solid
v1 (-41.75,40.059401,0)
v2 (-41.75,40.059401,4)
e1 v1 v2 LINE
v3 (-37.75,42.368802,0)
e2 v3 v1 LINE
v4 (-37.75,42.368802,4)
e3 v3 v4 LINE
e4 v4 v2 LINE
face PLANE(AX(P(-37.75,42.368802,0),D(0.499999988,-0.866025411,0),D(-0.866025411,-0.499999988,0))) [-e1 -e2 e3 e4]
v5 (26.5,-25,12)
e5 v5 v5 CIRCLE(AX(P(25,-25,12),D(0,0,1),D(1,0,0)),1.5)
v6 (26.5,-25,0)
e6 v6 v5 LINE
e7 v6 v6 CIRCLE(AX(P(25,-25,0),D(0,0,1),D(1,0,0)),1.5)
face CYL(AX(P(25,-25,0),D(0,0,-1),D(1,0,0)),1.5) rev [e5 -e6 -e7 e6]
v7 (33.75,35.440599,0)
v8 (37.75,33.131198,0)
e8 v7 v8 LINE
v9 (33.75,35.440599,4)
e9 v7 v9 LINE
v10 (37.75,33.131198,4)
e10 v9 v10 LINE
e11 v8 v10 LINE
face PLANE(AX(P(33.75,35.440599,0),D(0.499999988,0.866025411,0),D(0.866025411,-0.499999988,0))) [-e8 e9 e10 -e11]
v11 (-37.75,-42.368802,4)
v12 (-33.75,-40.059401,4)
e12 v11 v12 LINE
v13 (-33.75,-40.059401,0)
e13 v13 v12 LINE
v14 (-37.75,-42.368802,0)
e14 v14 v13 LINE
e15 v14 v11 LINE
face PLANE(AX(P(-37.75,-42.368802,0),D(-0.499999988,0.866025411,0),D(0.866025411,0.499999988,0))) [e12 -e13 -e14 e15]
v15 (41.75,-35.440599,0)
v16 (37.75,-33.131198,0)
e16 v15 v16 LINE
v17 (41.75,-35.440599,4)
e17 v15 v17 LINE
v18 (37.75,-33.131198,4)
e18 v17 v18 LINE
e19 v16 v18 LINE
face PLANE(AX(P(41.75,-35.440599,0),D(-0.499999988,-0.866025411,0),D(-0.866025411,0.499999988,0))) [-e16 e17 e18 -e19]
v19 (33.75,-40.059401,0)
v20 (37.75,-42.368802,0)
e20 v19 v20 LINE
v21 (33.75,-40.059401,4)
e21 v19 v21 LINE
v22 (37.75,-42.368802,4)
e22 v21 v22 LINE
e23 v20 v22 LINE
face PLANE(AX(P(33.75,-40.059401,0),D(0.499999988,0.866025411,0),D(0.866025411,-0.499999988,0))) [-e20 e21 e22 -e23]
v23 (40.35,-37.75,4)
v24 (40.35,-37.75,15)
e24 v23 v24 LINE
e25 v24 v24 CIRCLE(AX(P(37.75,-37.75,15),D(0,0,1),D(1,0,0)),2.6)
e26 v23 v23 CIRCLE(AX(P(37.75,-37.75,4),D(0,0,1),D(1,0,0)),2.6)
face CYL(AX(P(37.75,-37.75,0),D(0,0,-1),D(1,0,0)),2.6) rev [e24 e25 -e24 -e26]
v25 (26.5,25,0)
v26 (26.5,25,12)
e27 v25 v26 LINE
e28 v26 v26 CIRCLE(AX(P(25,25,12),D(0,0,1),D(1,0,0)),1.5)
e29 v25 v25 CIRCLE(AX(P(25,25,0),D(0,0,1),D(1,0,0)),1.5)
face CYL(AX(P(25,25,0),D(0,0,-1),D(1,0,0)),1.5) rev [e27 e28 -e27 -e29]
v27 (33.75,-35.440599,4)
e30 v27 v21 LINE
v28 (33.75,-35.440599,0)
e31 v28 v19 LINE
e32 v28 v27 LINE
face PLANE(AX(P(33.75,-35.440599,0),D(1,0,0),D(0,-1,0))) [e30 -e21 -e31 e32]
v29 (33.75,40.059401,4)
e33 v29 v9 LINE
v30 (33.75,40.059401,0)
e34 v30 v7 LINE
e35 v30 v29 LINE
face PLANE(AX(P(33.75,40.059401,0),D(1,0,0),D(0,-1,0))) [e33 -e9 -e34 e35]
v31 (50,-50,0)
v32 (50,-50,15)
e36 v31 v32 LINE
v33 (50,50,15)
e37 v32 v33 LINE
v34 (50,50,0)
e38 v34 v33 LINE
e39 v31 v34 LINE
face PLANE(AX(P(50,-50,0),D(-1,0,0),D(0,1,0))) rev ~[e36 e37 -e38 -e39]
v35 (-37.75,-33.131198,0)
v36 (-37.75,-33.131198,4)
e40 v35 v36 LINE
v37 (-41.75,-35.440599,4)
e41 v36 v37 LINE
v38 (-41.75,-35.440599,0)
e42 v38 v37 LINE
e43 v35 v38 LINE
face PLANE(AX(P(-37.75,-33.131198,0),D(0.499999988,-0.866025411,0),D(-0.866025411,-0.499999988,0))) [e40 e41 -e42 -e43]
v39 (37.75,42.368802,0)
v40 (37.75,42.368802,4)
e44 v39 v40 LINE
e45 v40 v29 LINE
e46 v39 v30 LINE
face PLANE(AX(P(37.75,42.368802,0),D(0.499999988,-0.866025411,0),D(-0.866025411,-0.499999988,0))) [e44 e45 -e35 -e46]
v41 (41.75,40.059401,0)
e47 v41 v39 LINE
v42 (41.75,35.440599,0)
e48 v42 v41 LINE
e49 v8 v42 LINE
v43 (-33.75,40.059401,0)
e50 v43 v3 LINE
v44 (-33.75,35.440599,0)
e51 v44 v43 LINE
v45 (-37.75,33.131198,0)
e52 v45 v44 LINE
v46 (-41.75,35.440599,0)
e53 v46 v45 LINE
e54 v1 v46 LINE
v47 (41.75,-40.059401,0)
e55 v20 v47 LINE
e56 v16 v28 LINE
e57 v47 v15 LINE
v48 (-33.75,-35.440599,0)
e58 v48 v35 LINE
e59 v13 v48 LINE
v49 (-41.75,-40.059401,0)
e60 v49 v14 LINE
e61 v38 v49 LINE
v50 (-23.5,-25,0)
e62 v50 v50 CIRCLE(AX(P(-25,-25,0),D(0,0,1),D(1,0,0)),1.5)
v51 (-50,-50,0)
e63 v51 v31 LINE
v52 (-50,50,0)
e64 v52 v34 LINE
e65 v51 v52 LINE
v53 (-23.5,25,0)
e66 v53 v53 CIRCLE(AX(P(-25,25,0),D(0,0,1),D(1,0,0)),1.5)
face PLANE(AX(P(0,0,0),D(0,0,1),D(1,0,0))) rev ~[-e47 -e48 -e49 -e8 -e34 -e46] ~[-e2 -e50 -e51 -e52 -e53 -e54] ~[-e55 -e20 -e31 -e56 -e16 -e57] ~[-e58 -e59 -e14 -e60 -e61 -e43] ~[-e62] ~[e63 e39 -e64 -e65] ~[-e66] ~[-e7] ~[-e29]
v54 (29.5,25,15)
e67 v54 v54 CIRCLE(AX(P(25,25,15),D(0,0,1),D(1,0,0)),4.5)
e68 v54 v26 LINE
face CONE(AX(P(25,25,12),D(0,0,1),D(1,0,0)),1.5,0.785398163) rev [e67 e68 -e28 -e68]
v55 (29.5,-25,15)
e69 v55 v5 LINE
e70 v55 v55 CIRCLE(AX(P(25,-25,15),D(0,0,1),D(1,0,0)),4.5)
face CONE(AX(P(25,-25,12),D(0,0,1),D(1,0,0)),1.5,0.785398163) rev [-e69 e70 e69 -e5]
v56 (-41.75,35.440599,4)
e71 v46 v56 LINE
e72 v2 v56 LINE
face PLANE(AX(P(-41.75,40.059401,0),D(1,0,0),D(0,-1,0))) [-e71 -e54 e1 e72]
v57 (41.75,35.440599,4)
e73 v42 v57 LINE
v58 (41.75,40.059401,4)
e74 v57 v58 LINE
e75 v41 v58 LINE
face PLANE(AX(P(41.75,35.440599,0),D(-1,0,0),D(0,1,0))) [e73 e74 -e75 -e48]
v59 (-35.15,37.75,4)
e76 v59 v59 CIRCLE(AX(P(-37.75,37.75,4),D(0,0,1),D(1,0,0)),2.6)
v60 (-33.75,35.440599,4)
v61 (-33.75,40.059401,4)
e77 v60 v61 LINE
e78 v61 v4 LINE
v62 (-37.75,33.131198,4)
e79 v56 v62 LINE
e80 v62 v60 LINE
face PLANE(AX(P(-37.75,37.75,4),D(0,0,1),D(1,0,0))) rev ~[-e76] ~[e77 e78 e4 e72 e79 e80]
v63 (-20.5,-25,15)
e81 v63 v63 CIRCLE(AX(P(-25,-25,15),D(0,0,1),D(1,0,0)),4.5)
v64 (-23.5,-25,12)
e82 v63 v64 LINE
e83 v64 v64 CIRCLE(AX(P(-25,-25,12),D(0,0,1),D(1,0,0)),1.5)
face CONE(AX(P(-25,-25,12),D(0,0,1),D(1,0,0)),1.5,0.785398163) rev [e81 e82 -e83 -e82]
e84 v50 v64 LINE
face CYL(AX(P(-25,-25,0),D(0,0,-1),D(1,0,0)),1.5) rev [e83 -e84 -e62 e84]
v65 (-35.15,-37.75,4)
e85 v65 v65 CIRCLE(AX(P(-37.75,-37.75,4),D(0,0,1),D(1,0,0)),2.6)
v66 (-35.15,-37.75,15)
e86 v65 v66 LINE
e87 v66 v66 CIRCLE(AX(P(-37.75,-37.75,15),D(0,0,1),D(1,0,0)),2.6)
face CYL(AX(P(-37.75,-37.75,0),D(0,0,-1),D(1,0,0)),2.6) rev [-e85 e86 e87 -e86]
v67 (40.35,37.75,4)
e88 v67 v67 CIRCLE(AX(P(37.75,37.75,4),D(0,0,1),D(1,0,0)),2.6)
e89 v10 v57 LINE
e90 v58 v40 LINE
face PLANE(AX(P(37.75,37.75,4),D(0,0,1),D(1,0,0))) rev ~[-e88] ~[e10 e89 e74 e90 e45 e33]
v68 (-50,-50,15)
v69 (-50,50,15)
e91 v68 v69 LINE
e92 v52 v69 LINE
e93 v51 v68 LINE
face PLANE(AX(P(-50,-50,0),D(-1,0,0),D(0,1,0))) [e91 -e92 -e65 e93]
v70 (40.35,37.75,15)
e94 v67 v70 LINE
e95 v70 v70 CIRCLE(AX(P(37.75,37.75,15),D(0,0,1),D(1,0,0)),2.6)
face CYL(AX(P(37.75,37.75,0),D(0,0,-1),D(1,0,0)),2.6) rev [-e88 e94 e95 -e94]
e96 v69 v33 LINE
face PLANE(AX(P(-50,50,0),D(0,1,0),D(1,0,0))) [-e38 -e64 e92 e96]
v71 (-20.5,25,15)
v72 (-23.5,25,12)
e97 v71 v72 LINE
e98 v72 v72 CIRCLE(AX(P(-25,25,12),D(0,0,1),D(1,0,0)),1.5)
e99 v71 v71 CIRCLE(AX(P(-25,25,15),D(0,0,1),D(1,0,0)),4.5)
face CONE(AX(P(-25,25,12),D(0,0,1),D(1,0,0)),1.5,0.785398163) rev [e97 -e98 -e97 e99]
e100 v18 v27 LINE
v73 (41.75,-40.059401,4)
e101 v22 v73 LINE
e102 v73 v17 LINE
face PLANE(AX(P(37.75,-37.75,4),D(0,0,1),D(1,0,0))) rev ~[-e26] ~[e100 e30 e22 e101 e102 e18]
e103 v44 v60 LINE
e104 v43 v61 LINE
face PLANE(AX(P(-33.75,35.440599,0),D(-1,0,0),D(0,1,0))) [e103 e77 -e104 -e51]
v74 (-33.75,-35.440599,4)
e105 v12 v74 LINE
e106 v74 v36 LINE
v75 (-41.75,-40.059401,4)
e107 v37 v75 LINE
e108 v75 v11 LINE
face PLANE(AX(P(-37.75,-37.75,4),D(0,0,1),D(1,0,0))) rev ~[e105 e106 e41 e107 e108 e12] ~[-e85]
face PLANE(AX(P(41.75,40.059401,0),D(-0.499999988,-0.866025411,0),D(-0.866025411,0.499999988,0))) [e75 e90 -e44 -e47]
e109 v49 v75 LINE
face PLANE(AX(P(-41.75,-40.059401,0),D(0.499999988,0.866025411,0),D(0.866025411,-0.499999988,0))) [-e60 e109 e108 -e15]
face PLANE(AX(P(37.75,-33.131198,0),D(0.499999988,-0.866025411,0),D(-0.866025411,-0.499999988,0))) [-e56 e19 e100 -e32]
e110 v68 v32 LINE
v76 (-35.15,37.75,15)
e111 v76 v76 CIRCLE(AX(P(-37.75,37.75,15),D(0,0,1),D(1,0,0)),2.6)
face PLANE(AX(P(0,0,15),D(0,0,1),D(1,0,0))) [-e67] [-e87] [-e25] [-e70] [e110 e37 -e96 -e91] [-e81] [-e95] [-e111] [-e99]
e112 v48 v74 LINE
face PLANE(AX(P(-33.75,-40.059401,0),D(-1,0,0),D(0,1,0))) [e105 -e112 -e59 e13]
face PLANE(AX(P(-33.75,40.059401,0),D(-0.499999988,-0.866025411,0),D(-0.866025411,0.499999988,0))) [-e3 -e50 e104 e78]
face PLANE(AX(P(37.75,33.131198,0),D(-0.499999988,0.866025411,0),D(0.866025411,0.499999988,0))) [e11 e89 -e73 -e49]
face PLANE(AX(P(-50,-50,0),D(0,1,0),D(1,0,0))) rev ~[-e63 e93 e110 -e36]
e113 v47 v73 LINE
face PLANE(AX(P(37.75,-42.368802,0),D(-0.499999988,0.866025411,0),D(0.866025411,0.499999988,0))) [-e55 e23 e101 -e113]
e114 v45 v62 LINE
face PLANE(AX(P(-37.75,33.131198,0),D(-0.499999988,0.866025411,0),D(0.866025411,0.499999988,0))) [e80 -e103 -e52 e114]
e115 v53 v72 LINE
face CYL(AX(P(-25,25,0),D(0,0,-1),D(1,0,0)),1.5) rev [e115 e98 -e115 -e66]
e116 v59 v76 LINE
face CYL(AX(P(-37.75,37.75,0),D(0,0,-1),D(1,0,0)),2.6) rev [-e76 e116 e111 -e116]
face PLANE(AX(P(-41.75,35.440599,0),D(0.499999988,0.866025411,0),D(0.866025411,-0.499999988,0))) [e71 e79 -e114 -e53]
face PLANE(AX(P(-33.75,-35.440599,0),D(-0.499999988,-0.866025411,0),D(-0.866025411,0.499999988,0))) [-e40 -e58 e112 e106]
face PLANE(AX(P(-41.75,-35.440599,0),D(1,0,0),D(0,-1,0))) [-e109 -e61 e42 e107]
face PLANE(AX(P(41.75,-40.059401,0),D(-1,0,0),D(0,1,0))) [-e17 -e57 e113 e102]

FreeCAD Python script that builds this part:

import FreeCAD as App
import Part
import Sketcher
Q = App.Units.Quantity


def edges_at(feature, points):
    """Names of the edges that pass closest to the given points."""
    edges = feature.Shape.Edges
    near = lambda p: min(range(len(edges)), key=lambda i: edges[i].distToShape(Part.Vertex(*p))[0])
    return sorted({f"Edge{near(p) + 1}" for p in points})


def add_polygon(sketch, points):
    """Adds a closed chain of lines whose ends are joined by coincident constraints."""
    first, n = sketch.GeometryCount, len(points)
    for a, b in zip(points, points[1:] + points[:1]):
        sketch.addGeometry(Part.LineSegment(App.Vector(*a, 0), App.Vector(*b, 0)), False)
    for i in range(n):
        sketch.addConstraint(Sketcher.Constraint("Coincident", first + i, 2, first + (i + 1) % n, 1))

doc = App.newDocument("Part")
body = doc.addObject("PartDesign::Body", "Body")

sketch1 = body.newObject("Sketcher::SketchObject", "Sketch")
sketch1.AttachmentSupport = (doc.getObject("XY_Plane"), [""])
sketch1.MapMode = "FlatFace"
add_polygon(sketch1, [(-50, 50), (-50, -50), (50, -50), (50, 50)])
sketch1.addGeometry(Part.Circle(App.Vector(-37.8, -37.8, 0), App.Vector(0, 0, 1), 2.6), False)
sketch1.addGeometry(Part.Circle(App.Vector(-25, -25, 0), App.Vector(0, 0, 1), 1.5), False)
sketch1.addGeometry(Part.Circle(App.Vector(37.8, -37.8, 0), App.Vector(0, 0, 1), 2.6), False)
sketch1.addGeometry(Part.Circle(App.Vector(25, -25, 0), App.Vector(0, 0, 1), 1.5), False)
sketch1.addGeometry(Part.Circle(App.Vector(-25, 25, 0), App.Vector(0, 0, 1), 1.5), False)
sketch1.addGeometry(Part.Circle(App.Vector(-37.8, 37.8, 0), App.Vector(0, 0, 1), 2.6), False)
sketch1.addGeometry(Part.Circle(App.Vector(25, 25, 0), App.Vector(0, 0, 1), 1.5), False)
sketch1.addGeometry(Part.Circle(App.Vector(37.8, 37.8, 0), App.Vector(0, 0, 1), 2.6), False)
sketch1.addConstraint(Sketcher.Constraint("Vertical", 0))
sketch1.addConstraint(Sketcher.Constraint("Horizontal", 1))
sketch1.addConstraint(Sketcher.Constraint("Vertical", 2))
sketch1.addConstraint(Sketcher.Constraint("Horizontal", 3))
sketch1.addConstraint(Sketcher.Constraint("Equal", 4, 6))
sketch1.addConstraint(Sketcher.Constraint("Equal", 5, 7))
sketch1.addConstraint(Sketcher.Constraint("Equal", 7, 8))
sketch1.addConstraint(Sketcher.Constraint("Equal", 6, 9))
sketch1.addConstraint(Sketcher.Constraint("Equal", 8, 10))
sketch1.addConstraint(Sketcher.Constraint("Equal", 9, 11))
sketch1.addConstraint(Sketcher.Constraint("Symmetric", 7, 3, 8, 3, -1, 1))
sketch1.addConstraint(Sketcher.Constraint("Symmetric", 6, 3, 9, 3, -1, 1))
sketch1.addConstraint(Sketcher.Constraint("Symmetric", 5, 3, 10, 3, -1, 1))
sketch1.addConstraint(Sketcher.Constraint("Symmetric", 4, 3, 11, 3, -1, 1))
sketch1.addConstraint(Sketcher.Constraint("Symmetric", 0, 2, 2, 2, -1, 1))
sketch1.addConstraint(Sketcher.Constraint("Symmetric", 4, 3, 6, 3, -2))
sketch1.addConstraint(Sketcher.Constraint("Symmetric", 5, 3, 7, 3, -2))
sketch1.addConstraint(Sketcher.Constraint("Equal", 3, 0))
sketch1.addConstraint(Sketcher.Constraint("Diameter", 5, 3.0))
sketch1.addConstraint(Sketcher.Constraint("Diameter", 4, 5.2))
sketch1.addConstraint(Sketcher.Constraint("DistanceX", 1, 1, 1, 2, 100.0))
sketch1.addConstraint(Sketcher.Constraint("DistanceX", 5, 3, -1, 1, 25.0))
sketch1.addConstraint(Sketcher.Constraint("DistanceY", 5, 3, -1, 1, 25.0))
sketch1.addConstraint(Sketcher.Constraint("DistanceX", 4, 3, 6, 3, 75.5))
sketch1.addConstraint(Sketcher.Constraint("DistanceY", 4, 3, 9, 3, 75.5))
pad1 = body.newObject("PartDesign::Pad", "Pad")
pad1.Profile = sketch1
pad1.Length = 15

sketch2 = body.newObject("Sketcher::SketchObject", "Sketch001")
sketch2.AttachmentSupport = (doc.getObject("XY_Plane"), [""])
sketch2.MapMode = "FlatFace"
add_polygon(sketch2, [(-41.8, 40.1), (-41.8, 35.4), (-37.8, 33.1), (-33.8, 35.4), (-33.8, 40.1), (-37.8, 42.4)])
sketch2.addGeometry(Part.Circle(App.Vector(-37.8, 37.8, 0), App.Vector(0, 0, 1), 2.6), False)
add_polygon(sketch2, [(41.8, 35.4), (41.8, 40.1), (37.8, 42.4), (33.8, 40.1), (33.8, 35.4), (37.8, 33.1)])
sketch2.addGeometry(Part.Circle(App.Vector(37.8, 37.8, 0), App.Vector(0, 0, 1), 2.6), False)
add_polygon(sketch2, [(41.8, -40.1), (41.8, -35.4), (37.8, -33.1), (33.8, -35.4), (33.8, -40.1), (37.8, -42.4)])
sketch2.addGeometry(Part.Circle(App.Vector(37.8, -37.8, 0), App.Vector(0, 0, 1), 2.6), False)
add_polygon(sketch2, [(-33.8, -40.1), (-33.8, -35.4), (-37.8, -33.1), (-41.8, -35.4), (-41.8, -40.1), (-37.8, -42.4)])
sketch2.addGeometry(Part.Circle(App.Vector(-37.8, -37.8, 0), App.Vector(0, 0, 1), 2.6), False)
sketch2.addConstraint(Sketcher.Constraint("Vertical", 0))
sketch2.addConstraint(Sketcher.Constraint("Vertical", 3))
sketch2.addConstraint(Sketcher.Constraint("Vertical", 7))
sketch2.addConstraint(Sketcher.Constraint("Vertical", 10))
sketch2.addConstraint(Sketcher.Constraint("Vertical", 14))
sketch2.addConstraint(Sketcher.Constraint("Vertical", 17))
sketch2.addConstraint(Sketcher.Constraint("Vertical", 21))
sketch2.addConstraint(Sketcher.Constraint("Vertical", 24))
sketch2.addConstraint(Sketcher.Constraint("Equal", 6, 13))
sketch2.addConstraint(Sketcher.Constraint("Equal", 13, 20))
sketch2.addConstraint(Sketcher.Constraint("Equal", 20, 27))
sketch2.addConstraint(Sketcher.Constraint("Symmetric", 6, 3, 20, 3, -1, 1))
sketch2.addConstraint(Sketcher.Constraint("Symmetric", 13, 3, 27, 3, -1, 1))
sketch2.addConstraint(Sketcher.Constraint("Symmetric", 0, 2, 14, 2, -1, 1))
sketch2.addConstraint(Sketcher.Constraint("Symmetric", 1, 2, 15, 2, -1, 1))
sketch2.addConstraint(Sketcher.Constraint("Symmetric", 2, 2, 16, 2, -1, 1))
sketch2.addConstraint(Sketcher.Constraint("Symmetric", 4, 2, 18, 2, -1, 1))
sketch2.addConstraint(Sketcher.Constraint("Symmetric", 10, 2, 21, 2, -1, 1))
sketch2.addConstraint(Sketcher.Constraint("Symmetric", 11, 2, 22, 2, -1, 1))
sketch2.addConstraint(Sketcher.Constraint("Symmetric", 12, 2, 23, 2, -1, 1))
sketch2.addConstraint(Sketcher.Constraint("Symmetric", 8, 2, 25, 2, -1, 1))
sketch2.addConstraint(Sketcher.Constraint("Symmetric", 6, 3, 13, 3, -2))
sketch2.addConstraint(Sketcher.Constraint("Symmetric", 5, 2, 7, 2, -2))
sketch2.addConstraint(Sketcher.Constraint("Symmetric", 4, 2, 8, 2, -2))
sketch2.addConstraint(Sketcher.Constraint("Symmetric", 3, 2, 9, 2, -2))
sketch2.addConstraint(Sketcher.Constraint("Symmetric", 1, 2, 11, 2, -2))
sketch2.addConstraint(Sketcher.Constraint("Parallel", 1, 4))
sketch2.addConstraint(Sketcher.Constraint("Parallel", 2, 5))
sketch2.addConstraint(Sketcher.Constraint("Parallel", 4, 8))
sketch2.addConstraint(Sketcher.Constraint("Parallel", 8, 11))
sketch2.addConstraint(Sketcher.Constraint("Parallel", 9, 12))
sketch2.addConstraint(Sketcher.Constraint("Parallel", 15, 18))
sketch2.addConstraint(Sketcher.Constraint("Parallel", 16, 19))
sketch2.addConstraint(Sketcher.Constraint("Parallel", 22, 25))
sketch2.addConstraint(Sketcher.Constraint("Parallel", 23, 26))
sketch2.addConstraint(Sketcher.Constraint("Horizontal", 0, 2, 2, 2))
sketch2.addConstraint(Sketcher.Constraint("Horizontal", 3, 2, 5, 2))
sketch2.addConstraint(Sketcher.Constraint("Vertical", 27, 3, 1, 2))
sketch2.addConstraint(Sketcher.Constraint("Diameter", 6, 5.2))
sketch2.addConstraint(Sketcher.Constraint("Angle", 1, Q("-29.999999 deg")))
sketch2.addConstraint(Sketcher.Constraint("DistanceX", 0, 2, 6, 3, 4.0))
sketch2.addConstraint(Sketcher.Constraint("DistanceX", 6, 3, 13, 3, 75.5))
sketch2.addConstraint(Sketcher.Constraint("DistanceY", 20, 3, 13, 3, 75.5))
sketch2.addConstraint(Sketcher.Constraint("DistanceY", -1, 1, 0, 2, 35.440599))
sketch2.addConstraint(Sketcher.Constraint("DistanceY", -1, 1, 3, 2, 40.059401))
pocket1 = body.newObject("PartDesign::Pocket", "Pocket")
pocket1.Profile = sketch2
pocket1.Length = 4
pocket1.Reversed = True
doc.recompute()

chamfer = body.newObject("PartDesign::Chamfer", "Chamfer")
chamfer.Base = (pocket1, edges_at(pocket1, [
    (-26.5, 25, 15),
    (23.5, 25, 15),
    (23.5, -25, 15),
    (-26.5, -25, 15),
]))
chamfer.Size = 3

doc.recompute()
